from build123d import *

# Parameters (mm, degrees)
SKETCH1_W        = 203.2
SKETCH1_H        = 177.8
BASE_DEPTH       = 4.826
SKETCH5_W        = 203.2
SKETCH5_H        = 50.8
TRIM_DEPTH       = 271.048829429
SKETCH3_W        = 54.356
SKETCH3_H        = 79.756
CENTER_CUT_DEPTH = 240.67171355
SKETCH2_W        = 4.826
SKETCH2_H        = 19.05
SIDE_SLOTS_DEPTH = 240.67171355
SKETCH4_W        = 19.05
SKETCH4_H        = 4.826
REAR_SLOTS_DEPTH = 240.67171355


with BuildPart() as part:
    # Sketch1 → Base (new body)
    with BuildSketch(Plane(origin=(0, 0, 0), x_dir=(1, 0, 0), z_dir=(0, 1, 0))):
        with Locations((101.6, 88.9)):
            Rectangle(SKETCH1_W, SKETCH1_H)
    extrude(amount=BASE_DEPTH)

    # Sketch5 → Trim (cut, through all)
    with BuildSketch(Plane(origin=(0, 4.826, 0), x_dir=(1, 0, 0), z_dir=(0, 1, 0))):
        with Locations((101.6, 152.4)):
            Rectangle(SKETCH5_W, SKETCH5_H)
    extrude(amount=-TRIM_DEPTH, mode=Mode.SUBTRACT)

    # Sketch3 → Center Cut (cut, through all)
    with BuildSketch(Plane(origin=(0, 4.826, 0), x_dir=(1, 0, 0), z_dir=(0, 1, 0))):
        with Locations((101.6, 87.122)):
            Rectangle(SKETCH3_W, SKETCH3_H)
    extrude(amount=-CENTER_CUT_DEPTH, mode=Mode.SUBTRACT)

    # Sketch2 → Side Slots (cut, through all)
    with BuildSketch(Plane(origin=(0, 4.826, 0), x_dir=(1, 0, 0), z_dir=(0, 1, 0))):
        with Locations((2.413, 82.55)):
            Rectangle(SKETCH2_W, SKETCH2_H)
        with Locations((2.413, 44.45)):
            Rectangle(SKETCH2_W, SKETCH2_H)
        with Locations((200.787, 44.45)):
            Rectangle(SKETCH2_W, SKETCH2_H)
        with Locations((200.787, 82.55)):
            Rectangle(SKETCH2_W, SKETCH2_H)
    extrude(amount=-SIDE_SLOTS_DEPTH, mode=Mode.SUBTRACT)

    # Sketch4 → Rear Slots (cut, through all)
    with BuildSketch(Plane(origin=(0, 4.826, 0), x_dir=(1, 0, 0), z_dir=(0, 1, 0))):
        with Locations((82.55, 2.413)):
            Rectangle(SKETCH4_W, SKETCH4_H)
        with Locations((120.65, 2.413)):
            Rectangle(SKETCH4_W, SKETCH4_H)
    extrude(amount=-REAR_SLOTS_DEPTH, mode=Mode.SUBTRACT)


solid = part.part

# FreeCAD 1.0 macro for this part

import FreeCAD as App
import Part
import Sketcher
from FreeCAD import Vector
Q = App.Units.Quantity


def add_polygon(sketch, points):
    """Adds a closed chain of lines whose ends are joined by coincident constraints."""
    first, n = sketch.GeometryCount, len(points)
    for a, b in zip(points, points[1:] + points[:1]):
        sketch.addGeometry(Part.LineSegment(App.Vector(*a, 0), App.Vector(*b, 0)), False)
    for i in range(n):
        sketch.addConstraint(Sketcher.Constraint("Coincident", first + i, 2, first + (i + 1) % n, 1))

doc = App.newDocument("Part")
params = doc.addObject("Spreadsheet::Sheet", "Params")
for row, (alias, value) in enumerate([
    ("sketch1_width", "8 in"),
    ("sketch1_height", "7 in"),
    ("pad1_length", "0.19 in"),
    ("sketch2_width", "8 in"),
    ("sketch2_height", "2 in"),
    ("sketch3_width", "2.14 in"),
    ("sketch3_height", "3.14 in"),
    ("sketch4_width", "0.19 in"),
    ("sketch4_height", "0.75 in"),
    ("sketch5_width", "0.75 in"),
    ("sketch5_height", "0.19 in"),
], start=1):
    params.set(f"A{row}", alias)
    params.set(f"B{row}", "=" + value)
    params.setAlias(f"B{row}", alias)

body = doc.addObject("PartDesign::Body", "Body")

# Sketch on XZ plane
sketch1 = doc.addObject("Sketcher::SketchObject", "Sketch")
body.addObject(sketch1)
sketch1.AttachmentSupport = (doc.XZ_Plane, [""])
sketch1.MapMode = "FlatFace"
add_polygon(sketch1, [(0, -178), (0, 0), (203, 0), (203, -178)])  # lines 0-3
sketch1.addConstraint(Sketcher.Constraint("Vertical", 0))
sketch1.addConstraint(Sketcher.Constraint("Horizontal", 1))
sketch1.addConstraint(Sketcher.Constraint("Vertical", 2))
sketch1.addConstraint(Sketcher.Constraint("Horizontal", 3))
sketch1.addConstraint(Sketcher.Constraint("Coincident", 0, 2, -1, 1))
sketch1.addConstraint(Sketcher.Constraint("DistanceX", 1, 1, 1, 2, Q("8 in")))
sketch1.addConstraint(Sketcher.Constraint("DistanceY", 0, 1, 0, 2, Q("7 in")))
sketch1.setExpression("Constraints[9]", "Params.sketch1_width")
sketch1.setExpression("Constraints[10]", "Params.sketch1_height")
pad1 = doc.addObject("PartDesign::Pad", "Pad")
body.addObject(pad1)
pad1.Profile = sketch1
pad1.setExpression("Length", "Params.pad1_length")
pad1.Reversed = True

# Sketch on XZ plane
sketch2 = doc.addObject("Sketcher::SketchObject", "Sketch001")
body.addObject(sketch2)
sketch2.AttachmentSupport = (doc.XZ_Plane, [""])
sketch2.MapMode = "FlatFace"
sketch2.AttachmentOffset = App.Placement(Vector(0, 0, -0.19 * 25.4), App.Rotation())
add_polygon(sketch2, [(0, -178), (0, -127), (203, -127), (203, -178)])  # lines 0-3
sketch2.addConstraint(Sketcher.Constraint("Vertical", 0))
sketch2.addConstraint(Sketcher.Constraint("Horizontal", 1))
sketch2.addConstraint(Sketcher.Constraint("Vertical", 2))
sketch2.addConstraint(Sketcher.Constraint("Horizontal", 3))
sketch2.addConstraint(Sketcher.Constraint("PointOnObject", 0, 2, -2))
sketch2.addConstraint(Sketcher.Constraint("DistanceX", 1, 1, 1, 2, Q("8 in")))
sketch2.addConstraint(Sketcher.Constraint("DistanceY", 0, 1, 0, 2, Q("2 in")))
sketch2.addConstraint(Sketcher.Constraint("DistanceY", 0, 2, -1, 1, Q("5 in")))
sketch2.setExpression("Constraints[9]", "Params.sketch2_width")
sketch2.setExpression("Constraints[10]", "Params.sketch2_height")
pocket1 = doc.addObject("PartDesign::Pocket", "Pocket")
body.addObject(pocket1)
pocket1.Profile = sketch2
pocket1.Type = "ThroughAll"
pocket1.Reversed = True

# Sketch on XZ plane
sketch3 = doc.addObject("Sketcher::SketchObject", "Sketch002")
body.addObject(sketch3)
sketch3.AttachmentSupport = (doc.XZ_Plane, [""])
sketch3.MapMode = "FlatFace"
sketch3.AttachmentOffset = App.Placement(Vector(0, 0, -0.19 * 25.4), App.Rotation())
add_polygon(sketch3, [(74, -127), (74, -47), (129, -47), (129, -127)])  # lines 0-3
sketch3.addConstraint(Sketcher.Constraint("Vertical", 0))
sketch3.addConstraint(Sketcher.Constraint("Horizontal", 1))
sketch3.addConstraint(Sketcher.Constraint("Vertical", 2))
sketch3.addConstraint(Sketcher.Constraint("Horizontal", 3))
sketch3.addConstraint(Sketcher.Constraint("DistanceY", 2, 2, -1, 1, Q("5 in")))
sketch3.addConstraint(Sketcher.Constraint("DistanceX", 1, 1, 1, 2, Q("2.14 in")))
sketch3.addConstraint(Sketcher.Constraint("DistanceY", 0, 1, 0, 2, Q("3.14 in")))
sketch3.addConstraint(Sketcher.Constraint("DistanceX", -1, 1, 0, 2, Q("2.93 in")))
sketch3.setExpression("Constraints[9]", "Params.sketch3_width")
sketch3.setExpression("Constraints[10]", "Params.sketch3_height")
pocket2 = doc.addObject("PartDesign::Pocket", "Pocket001")
body.addObject(pocket2)
pocket2.Profile = sketch3
pocket2.Type = "ThroughAll"
pocket2.Reversed = True

# Sketch on XZ plane
sketch4 = doc.addObject("Sketcher::SketchObject", "Sketch003")
body.addObject(sketch4)
sketch4.AttachmentSupport = (doc.XZ_Plane, [""])
sketch4.MapMode = "FlatFace"
sketch4.AttachmentOffset = App.Placement(Vector(0, 0, -0.19 * 25.4), App.Rotation())
add_polygon(sketch4, [(0, -92.1), (0, -73), (4.8, -73), (4.8, -92.1)])  # lines 0-3
add_polygon(sketch4, [(0, -54), (0, -34.9), (4.8, -34.9), (4.8, -54)])  # lines 4-7
add_polygon(sketch4, [(198.4, -54), (198.4, -34.9), (203.2, -34.9), (203.2, -54)])  # lines 8-11
add_polygon(sketch4, [(198.4, -92.1), (198.4, -73), (203.2, -73), (203.2, -92.1)])  # lines 12-15
sketch4.addConstraint(Sketcher.Constraint("Vertical", 0))
sketch4.addConstraint(Sketcher.Constraint("Horizontal", 1))
sketch4.addConstraint(Sketcher.Constraint("Vertical", 2))
sketch4.addConstraint(Sketcher.Constraint("Horizontal", 3))
sketch4.addConstraint(Sketcher.Constraint("Vertical", 4))
sketch4.addConstraint(Sketcher.Constraint("Horizontal", 5))
sketch4.addConstraint(Sketcher.Constraint("Vertical", 6))
sketch4.addConstraint(Sketcher.Constraint("Horizontal", 7))
sketch4.addConstraint(Sketcher.Constraint("Vertical", 8))
sketch4.addConstraint(Sketcher.Constraint("Horizontal", 9))
sketch4.addConstraint(Sketcher.Constraint("Vertical", 10))
sketch4.addConstraint(Sketcher.Constraint("Horizontal", 11))
sketch4.addConstraint(Sketcher.Constraint("Vertical", 12))
sketch4.addConstraint(Sketcher.Constraint("Horizontal", 13))
sketch4.addConstraint(Sketcher.Constraint("Vertical", 14))
sketch4.addConstraint(Sketcher.Constraint("Horizontal", 15))
sketch4.addConstraint(Sketcher.Constraint("PointOnObject", 0, 2, -2))
sketch4.addConstraint(Sketcher.Constraint("PointOnObject", 4, 2, -2))
sketch4.addConstraint(Sketcher.Constraint("Horizontal", 5, 2, 8, 2))
sketch4.addConstraint(Sketcher.Constraint("Horizontal", 7, 2, 10, 2))
sketch4.addConstraint(Sketcher.Constraint("Horizontal", 1, 2, 12, 2))
sketch4.addConstraint(Sketcher.Constraint("Horizontal", 3, 2, 14, 2))
sketch4.addConstraint(Sketcher.Constraint("Vertical", 2, 2, 5, 2))
sketch4.addConstraint(Sketcher.Constraint("Vertical", 11, 2, 12, 2))
sketch4.addConstraint(Sketcher.Constraint("Vertical", 10, 2, 13, 2))
sketch4.addConstraint(Sketcher.Constraint("Equal", 7, 9))
sketch4.addConstraint(Sketcher.Constraint("Equal", 2, 4))
sketch4.addConstraint(Sketcher.Constraint("DistanceX", -1, 1, 9, 2, Q("8 in")))
sketch4.addConstraint(Sketcher.Constraint("DistanceX", 1, 1, 1, 2, Q("0.19 in")))
sketch4.addConstraint(Sketcher.Constraint("DistanceY", 0, 1, 0, 2, Q("0.75 in")))
sketch4.addConstraint(Sketcher.Constraint("DistanceY", 0, 2, 4, 2, Q("1.5 in")))
sketch4.addConstraint(Sketcher.Constraint("DistanceY", 0, 2, -1, 1, Q("2.875 in")))
sketch4.setExpression("Constraints[44]", "Params.sketch4_width")
sketch4.setExpression("Constraints[45]", "Params.sketch4_height")
pocket3 = doc.addObject("PartDesign::Pocket", "Pocket002")
body.addObject(pocket3)
pocket3.Profile = sketch4
pocket3.Type = "ThroughAll"
pocket3.Reversed = True

# Sketch on XZ plane
sketch5 = doc.addObject("Sketcher::SketchObject", "Sketch004")
body.addObject(sketch5)
sketch5.AttachmentSupport = (doc.XZ_Plane, [""])
sketch5.MapMode = "FlatFace"
sketch5.AttachmentOffset = App.Placement(Vector(0, 0, -0.19 * 25.4), App.Rotation())
add_polygon(sketch5, [(73, -4.8), (73, 0), (92.1, 0), (92.1, -4.8)])  # lines 0-3
add_polygon(sketch5, [(111.1, -4.8), (111.1, 0), (130.2, 0), (130.2, -4.8)])  # lines 4-7
sketch5.addConstraint(Sketcher.Constraint("Vertical", 0))
sketch5.addConstraint(Sketcher.Constraint("Horizontal", 1))
sketch5.addConstraint(Sketcher.Constraint("Vertical", 2))
sketch5.addConstraint(Sketcher.Constraint("Horizontal", 3))
sketch5.addConstraint(Sketcher.Constraint("Vertical", 4))
sketch5.addConstraint(Sketcher.Constraint("Horizontal", 5))
sketch5.addConstraint(Sketcher.Constraint("Vertical", 6))
sketch5.addConstraint(Sketcher.Constraint("Horizontal", 7))
sketch5.addConstraint(Sketcher.Constraint("PointOnObject", 0, 2, -1))
sketch5.addConstraint(Sketcher.Constraint("PointOnObject", 4, 2, -1))
sketch5.addConstraint(Sketcher.Constraint("Horizontal", 3, 2, 6, 2))
sketch5.addConstraint(Sketcher.Constraint("Equal", 3, 5))
sketch5.addConstraint(Sketcher.Constraint("DistanceX", 1, 1, 1, 2, Q("0.75 in")))
sketch5.addConstraint(Sketcher.Constraint("DistanceY", 0, 1, 0, 2, Q("0.19 in")))
sketch5.addConstraint(Sketcher.Constraint("DistanceX", 0, 2, 4, 2, Q("1.5 in")))
sketch5.addConstraint(Sketcher.Constraint("DistanceX", -1, 1, 0, 2, Q("2.875 in")))
sketch5.setExpression("Constraints[20]", "Params.sketch5_width")
sketch5.setExpression("Constraints[21]", "Params.sketch5_height")
pocket4 = doc.addObject("PartDesign::Pocket", "Pocket003")
body.addObject(pocket4)
pocket4.Profile = sketch5
pocket4.Type = "ThroughAll"
pocket4.Reversed = True

doc.recompute()
